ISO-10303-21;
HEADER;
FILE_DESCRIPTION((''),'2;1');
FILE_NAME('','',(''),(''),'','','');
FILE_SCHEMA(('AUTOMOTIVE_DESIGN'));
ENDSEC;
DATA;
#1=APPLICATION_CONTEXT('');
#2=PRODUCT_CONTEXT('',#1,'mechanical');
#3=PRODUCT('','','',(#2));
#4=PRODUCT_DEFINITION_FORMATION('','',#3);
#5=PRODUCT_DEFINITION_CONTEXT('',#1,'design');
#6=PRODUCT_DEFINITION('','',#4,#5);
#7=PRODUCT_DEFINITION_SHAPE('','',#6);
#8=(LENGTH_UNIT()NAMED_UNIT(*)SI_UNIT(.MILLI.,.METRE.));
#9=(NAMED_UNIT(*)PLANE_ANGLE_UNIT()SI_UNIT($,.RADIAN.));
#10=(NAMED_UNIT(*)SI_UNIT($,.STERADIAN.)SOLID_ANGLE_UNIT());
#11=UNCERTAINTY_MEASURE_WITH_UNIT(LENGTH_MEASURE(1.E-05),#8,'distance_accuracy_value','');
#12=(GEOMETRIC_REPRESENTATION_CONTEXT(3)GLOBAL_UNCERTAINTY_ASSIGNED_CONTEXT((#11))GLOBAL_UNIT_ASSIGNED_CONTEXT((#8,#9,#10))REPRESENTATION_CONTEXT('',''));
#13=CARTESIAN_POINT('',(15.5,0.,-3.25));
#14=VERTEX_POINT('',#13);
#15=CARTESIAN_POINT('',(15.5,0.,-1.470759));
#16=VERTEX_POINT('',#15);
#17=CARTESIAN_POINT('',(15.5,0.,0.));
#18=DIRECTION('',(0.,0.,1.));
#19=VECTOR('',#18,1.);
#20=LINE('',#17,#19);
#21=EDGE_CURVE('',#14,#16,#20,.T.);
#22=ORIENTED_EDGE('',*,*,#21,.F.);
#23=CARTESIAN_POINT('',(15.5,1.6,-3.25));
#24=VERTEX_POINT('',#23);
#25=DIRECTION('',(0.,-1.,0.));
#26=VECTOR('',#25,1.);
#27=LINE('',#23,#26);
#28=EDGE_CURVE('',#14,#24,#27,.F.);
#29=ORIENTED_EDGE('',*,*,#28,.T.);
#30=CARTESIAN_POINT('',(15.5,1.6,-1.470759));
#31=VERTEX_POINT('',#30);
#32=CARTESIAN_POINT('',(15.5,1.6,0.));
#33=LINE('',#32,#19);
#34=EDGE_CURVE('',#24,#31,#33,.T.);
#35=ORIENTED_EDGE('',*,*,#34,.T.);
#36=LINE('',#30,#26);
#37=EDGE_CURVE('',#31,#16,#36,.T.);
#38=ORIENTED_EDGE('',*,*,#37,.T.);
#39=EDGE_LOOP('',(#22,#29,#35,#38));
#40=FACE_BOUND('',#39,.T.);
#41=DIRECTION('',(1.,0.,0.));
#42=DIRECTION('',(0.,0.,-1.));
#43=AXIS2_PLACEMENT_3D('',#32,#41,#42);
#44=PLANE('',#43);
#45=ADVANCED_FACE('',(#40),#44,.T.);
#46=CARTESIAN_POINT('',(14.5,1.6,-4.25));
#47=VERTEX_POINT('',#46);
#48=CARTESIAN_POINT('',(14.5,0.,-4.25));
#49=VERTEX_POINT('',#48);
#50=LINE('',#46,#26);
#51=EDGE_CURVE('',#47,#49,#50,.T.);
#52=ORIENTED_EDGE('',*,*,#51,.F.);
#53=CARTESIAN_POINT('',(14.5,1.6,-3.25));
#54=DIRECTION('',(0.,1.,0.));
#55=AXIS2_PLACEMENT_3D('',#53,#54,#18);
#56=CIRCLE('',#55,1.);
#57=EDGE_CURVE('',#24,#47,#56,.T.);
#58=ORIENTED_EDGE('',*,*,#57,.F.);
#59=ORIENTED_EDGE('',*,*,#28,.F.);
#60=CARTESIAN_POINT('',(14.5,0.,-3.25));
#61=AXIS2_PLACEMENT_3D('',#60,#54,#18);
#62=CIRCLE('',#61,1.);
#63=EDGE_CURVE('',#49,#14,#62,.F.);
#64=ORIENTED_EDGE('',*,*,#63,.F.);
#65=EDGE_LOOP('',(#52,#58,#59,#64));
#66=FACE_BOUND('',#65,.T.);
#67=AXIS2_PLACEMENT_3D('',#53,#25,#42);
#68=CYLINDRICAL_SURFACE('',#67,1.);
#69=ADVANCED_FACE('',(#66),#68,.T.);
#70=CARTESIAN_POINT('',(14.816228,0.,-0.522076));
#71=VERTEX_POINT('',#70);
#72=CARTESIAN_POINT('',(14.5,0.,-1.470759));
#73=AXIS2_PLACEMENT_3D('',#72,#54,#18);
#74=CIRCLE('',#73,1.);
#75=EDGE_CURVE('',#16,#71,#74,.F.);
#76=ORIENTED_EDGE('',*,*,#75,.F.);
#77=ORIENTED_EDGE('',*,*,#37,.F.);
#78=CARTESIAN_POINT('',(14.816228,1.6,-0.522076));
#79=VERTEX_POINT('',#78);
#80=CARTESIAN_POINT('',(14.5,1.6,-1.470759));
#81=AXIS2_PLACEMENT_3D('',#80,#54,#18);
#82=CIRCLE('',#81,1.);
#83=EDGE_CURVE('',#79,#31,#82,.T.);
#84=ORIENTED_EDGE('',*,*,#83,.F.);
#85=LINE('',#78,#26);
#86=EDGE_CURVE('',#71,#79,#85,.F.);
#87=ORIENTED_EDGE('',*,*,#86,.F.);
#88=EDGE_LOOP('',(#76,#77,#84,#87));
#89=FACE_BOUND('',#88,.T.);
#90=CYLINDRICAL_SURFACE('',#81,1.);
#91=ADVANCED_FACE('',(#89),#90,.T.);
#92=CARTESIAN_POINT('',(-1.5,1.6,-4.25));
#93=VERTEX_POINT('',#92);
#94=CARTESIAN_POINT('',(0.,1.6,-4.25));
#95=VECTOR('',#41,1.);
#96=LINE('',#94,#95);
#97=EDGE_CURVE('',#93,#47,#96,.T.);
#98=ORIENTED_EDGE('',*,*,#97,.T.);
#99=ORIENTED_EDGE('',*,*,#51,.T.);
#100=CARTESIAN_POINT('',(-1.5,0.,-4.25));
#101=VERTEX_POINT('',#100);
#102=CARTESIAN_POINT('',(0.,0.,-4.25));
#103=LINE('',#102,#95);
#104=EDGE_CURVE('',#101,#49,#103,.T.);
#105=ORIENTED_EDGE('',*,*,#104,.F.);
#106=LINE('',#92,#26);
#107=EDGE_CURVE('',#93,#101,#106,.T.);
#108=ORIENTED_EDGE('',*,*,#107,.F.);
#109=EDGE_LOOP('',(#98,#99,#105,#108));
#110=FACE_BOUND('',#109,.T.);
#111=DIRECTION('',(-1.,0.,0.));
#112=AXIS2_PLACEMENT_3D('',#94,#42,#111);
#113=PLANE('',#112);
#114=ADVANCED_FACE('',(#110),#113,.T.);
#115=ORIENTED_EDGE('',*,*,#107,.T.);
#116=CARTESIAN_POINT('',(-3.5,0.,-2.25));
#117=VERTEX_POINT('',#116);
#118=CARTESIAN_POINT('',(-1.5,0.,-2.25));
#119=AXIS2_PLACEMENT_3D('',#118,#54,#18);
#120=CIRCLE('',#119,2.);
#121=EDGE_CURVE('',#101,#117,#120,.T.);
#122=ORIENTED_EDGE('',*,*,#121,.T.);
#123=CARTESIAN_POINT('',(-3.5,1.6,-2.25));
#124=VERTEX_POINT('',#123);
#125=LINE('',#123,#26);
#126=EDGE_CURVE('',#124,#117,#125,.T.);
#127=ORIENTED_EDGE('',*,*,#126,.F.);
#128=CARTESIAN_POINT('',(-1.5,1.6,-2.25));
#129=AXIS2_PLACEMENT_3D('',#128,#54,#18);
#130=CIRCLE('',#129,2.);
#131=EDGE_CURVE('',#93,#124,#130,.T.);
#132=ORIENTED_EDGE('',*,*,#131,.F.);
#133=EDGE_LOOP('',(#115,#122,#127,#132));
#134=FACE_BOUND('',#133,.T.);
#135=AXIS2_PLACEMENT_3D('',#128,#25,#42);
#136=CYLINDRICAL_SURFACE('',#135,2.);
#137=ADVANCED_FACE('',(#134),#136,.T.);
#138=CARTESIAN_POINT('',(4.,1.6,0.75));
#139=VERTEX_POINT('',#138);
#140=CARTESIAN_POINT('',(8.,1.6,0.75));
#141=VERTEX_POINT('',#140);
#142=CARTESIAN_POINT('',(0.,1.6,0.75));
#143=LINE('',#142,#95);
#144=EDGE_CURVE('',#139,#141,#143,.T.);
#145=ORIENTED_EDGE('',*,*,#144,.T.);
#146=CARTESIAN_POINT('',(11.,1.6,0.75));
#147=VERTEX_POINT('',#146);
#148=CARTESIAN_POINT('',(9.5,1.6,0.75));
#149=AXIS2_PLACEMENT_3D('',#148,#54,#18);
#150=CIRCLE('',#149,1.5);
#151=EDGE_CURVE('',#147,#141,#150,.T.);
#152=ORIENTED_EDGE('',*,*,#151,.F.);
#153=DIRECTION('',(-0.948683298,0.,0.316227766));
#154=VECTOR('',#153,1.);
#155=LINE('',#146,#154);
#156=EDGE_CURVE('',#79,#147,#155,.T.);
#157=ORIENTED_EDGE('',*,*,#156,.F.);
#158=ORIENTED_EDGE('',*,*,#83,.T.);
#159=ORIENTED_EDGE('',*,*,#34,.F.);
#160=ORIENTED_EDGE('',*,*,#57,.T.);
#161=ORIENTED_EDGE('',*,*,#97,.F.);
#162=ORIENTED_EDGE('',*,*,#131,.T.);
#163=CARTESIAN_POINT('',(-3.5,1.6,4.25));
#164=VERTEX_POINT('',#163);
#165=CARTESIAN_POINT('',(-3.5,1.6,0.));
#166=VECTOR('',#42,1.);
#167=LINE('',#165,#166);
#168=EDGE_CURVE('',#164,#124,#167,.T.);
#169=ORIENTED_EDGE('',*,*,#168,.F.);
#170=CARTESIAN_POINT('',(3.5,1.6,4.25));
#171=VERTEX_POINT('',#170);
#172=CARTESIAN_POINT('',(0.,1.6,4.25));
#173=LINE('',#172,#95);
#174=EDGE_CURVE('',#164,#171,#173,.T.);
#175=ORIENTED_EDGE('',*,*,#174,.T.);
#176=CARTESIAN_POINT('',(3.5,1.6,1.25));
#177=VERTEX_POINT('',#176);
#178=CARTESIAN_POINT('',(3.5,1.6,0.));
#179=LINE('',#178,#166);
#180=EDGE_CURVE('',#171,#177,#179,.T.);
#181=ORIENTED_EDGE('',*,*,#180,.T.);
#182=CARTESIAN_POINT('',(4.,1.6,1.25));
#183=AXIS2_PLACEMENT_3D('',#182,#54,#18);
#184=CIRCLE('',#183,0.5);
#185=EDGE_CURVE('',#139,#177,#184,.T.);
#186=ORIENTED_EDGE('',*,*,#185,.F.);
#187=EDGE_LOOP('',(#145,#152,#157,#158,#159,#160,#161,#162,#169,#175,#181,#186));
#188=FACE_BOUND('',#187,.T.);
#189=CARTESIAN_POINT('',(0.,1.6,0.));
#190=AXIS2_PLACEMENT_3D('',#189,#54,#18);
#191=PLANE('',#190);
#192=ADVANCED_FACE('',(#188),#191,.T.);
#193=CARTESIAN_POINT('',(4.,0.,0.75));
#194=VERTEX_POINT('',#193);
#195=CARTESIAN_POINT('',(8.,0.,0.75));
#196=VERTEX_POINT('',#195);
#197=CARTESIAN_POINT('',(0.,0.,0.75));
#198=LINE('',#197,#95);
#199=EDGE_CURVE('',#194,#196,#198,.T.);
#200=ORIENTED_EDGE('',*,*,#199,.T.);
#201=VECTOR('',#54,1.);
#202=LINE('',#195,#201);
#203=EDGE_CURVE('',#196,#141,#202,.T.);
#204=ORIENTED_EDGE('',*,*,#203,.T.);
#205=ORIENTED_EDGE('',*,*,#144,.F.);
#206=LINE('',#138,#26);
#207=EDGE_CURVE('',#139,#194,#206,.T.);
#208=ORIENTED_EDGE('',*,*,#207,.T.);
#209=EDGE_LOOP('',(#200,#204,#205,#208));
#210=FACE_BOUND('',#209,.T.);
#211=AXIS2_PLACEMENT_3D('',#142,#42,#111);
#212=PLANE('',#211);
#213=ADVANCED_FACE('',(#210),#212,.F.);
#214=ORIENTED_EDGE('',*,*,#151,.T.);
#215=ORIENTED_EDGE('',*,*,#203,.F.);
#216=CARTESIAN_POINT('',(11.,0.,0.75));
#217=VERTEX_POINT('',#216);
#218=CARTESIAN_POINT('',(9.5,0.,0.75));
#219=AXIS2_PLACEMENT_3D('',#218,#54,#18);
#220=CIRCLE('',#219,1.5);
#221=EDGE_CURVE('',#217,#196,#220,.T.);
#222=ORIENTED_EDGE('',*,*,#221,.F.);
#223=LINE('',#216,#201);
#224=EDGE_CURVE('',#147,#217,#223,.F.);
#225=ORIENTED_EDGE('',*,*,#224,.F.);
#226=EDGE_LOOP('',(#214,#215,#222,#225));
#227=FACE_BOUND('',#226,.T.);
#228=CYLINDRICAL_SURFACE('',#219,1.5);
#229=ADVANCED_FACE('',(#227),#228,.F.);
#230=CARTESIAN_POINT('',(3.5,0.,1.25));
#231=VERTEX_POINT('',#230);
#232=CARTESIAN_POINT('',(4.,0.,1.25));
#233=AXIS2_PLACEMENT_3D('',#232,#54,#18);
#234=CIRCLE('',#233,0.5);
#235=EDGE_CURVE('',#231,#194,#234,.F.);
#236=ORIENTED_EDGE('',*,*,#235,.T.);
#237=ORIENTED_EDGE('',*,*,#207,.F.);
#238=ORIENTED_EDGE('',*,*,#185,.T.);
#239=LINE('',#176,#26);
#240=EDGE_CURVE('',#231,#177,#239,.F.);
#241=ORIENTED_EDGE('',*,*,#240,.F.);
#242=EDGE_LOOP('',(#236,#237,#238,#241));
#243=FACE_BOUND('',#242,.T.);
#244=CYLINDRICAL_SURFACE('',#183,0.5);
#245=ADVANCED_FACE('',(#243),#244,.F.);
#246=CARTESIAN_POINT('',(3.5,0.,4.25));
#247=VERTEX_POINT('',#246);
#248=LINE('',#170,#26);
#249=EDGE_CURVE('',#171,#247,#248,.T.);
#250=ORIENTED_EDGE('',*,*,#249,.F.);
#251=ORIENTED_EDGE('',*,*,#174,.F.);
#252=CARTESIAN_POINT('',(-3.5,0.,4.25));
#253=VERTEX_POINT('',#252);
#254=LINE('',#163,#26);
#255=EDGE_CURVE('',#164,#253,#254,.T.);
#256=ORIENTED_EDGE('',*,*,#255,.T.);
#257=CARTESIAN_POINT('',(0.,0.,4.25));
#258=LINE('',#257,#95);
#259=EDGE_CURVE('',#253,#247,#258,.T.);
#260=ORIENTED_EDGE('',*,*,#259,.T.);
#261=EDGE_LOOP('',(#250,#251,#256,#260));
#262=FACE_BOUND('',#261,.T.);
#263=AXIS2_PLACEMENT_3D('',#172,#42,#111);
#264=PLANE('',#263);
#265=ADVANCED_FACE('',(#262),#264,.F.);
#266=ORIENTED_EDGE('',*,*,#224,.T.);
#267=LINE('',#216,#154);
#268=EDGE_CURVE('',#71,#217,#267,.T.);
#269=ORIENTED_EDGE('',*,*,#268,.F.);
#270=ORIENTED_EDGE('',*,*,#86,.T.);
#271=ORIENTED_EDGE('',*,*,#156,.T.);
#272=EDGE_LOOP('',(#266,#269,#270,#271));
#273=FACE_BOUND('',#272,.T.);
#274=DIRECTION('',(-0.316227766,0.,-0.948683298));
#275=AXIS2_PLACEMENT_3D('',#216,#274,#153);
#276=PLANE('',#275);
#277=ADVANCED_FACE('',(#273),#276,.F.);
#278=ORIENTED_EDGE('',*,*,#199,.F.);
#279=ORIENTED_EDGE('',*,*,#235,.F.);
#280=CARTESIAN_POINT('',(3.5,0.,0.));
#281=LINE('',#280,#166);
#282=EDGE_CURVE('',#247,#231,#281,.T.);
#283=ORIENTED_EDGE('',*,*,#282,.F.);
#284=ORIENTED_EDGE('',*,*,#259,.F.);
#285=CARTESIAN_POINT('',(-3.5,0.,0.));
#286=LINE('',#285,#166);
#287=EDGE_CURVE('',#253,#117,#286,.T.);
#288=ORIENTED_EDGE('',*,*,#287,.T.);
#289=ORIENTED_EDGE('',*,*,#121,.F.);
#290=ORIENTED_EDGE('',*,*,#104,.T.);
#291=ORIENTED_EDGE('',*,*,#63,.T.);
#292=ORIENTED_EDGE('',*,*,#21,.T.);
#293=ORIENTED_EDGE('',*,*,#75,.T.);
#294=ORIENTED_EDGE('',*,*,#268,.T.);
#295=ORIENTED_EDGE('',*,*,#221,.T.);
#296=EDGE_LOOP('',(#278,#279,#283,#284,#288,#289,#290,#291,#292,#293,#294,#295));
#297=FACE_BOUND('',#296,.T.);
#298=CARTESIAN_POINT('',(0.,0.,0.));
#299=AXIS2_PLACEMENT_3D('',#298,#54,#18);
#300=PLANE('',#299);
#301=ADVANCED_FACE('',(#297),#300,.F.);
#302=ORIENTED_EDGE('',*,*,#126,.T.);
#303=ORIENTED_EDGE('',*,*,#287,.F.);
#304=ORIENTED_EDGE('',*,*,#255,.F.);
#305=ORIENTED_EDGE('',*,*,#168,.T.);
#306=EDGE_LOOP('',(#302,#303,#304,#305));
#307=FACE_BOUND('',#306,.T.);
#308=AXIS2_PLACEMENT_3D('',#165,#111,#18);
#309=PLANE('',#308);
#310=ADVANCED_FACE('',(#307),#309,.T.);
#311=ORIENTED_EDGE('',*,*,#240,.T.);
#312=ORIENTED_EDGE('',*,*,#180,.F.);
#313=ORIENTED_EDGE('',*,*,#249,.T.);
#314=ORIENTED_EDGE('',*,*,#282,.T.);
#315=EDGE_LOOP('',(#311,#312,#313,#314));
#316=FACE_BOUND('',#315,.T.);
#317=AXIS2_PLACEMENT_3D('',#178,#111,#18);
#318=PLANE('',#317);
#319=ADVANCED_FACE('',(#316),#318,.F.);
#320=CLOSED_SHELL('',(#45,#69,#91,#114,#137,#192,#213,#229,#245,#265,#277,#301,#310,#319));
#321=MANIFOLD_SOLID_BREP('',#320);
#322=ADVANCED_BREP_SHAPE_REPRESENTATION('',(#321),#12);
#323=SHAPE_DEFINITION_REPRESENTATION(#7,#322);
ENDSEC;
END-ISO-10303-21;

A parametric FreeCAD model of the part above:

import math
import FreeCAD as App
import Part
import Sketcher

V = App.Vector


def edges_at(feature, points):
    """Names of the edges that pass closest to the given points."""
    edges = feature.Shape.Edges
    near = lambda p: min(range(len(edges)), key=lambda i: edges[i].distToShape(Part.Vertex(*p))[0])
    return sorted({f"Edge{near(p) + 1}" for p in points})

doc = App.newDocument("Part")
body = doc.addObject("PartDesign::Body", "Body")

sketch1 = doc.addObject("Sketcher::SketchObject", "Sketch")
body.addObject(sketch1)
sketch1.AttachmentSupport = (doc.XZ_Plane, [""])
sketch1.MapMode = "FlatFace"
sketch1.addGeometry(Part.LineSegment(V(-3.5, -2.25, 0), V(-3.5, 4.25, 0)), False)
sketch1.addGeometry(Part.LineSegment(V(-3.5, 4.25, 0), V(3.5, 4.25, 0)), False)
sketch1.addGeometry(Part.LineSegment(V(3.5, 4.25, 0), V(3.5, 0.75, 0)), False)
sketch1.addGeometry(Part.LineSegment(V(3.5, 0.75, 0), V(15.5, 0.75, 0)), False)
sketch1.addGeometry(Part.LineSegment(V(15.5, 0.75, 0), V(15.5, -4.25, 0)), False)
sketch1.addGeometry(Part.LineSegment(V(15.5, -4.25, 0), V(-1.5, -4.25, 0)), False)
sketch1.addGeometry(Part.ArcOfCircle(Part.Circle(V(-1.5, -2.25, 0), V(0, 0, 1), 2), math.radians(-180), math.radians(-90)), False)
sketch1.addConstraint(Sketcher.Constraint("Coincident", 0, 2, 1, 1))
sketch1.addConstraint(Sketcher.Constraint("Coincident", 1, 2, 2, 1))
sketch1.addConstraint(Sketcher.Constraint("Coincident", 2, 2, 3, 1))
sketch1.addConstraint(Sketcher.Constraint("Coincident", 3, 2, 4, 1))
sketch1.addConstraint(Sketcher.Constraint("Coincident", 4, 2, 5, 1))
sketch1.addConstraint(Sketcher.Constraint("Tangent", 5, 2, 6, 2))
sketch1.addConstraint(Sketcher.Constraint("Tangent", 6, 1, 0, 1))
sketch1.addConstraint(Sketcher.Constraint("Vertical", 0))
sketch1.addConstraint(Sketcher.Constraint("Horizontal", 1))
sketch1.addConstraint(Sketcher.Constraint("Vertical", 2))
sketch1.addConstraint(Sketcher.Constraint("Horizontal", 3))
sketch1.addConstraint(Sketcher.Constraint("Vertical", 4))
sketch1.addConstraint(Sketcher.Constraint("Horizontal", 5))
sketch1.addConstraint(Sketcher.Constraint("Radius", 6, 2.0))
sketch1.addConstraint(Sketcher.Constraint("DistanceX", 1, 1, 1, 2, 7.0))
sketch1.addConstraint(Sketcher.Constraint("DistanceX", 3, 1, 3, 2, 12.0))
sketch1.addConstraint(Sketcher.Constraint("DistanceY", 4, 2, 4, 1, 5.0))
sketch1.addConstraint(Sketcher.Constraint("DistanceY", 0, 1, 0, 2, 6.5))
sketch1.addConstraint(Sketcher.Constraint("DistanceX", 6, 3, -1, 1, 1.5))
sketch1.addConstraint(Sketcher.Constraint("DistanceY", 6, 3, -1, 1, 2.25))
pad1 = doc.addObject("PartDesign::Pad", "Pad")
body.addObject(pad1)
pad1.Profile = sketch1
pad1.Length = 1.6
pad1.Reversed = True

sketch2 = doc.addObject("Sketcher::SketchObject", "Sketch001")
body.addObject(sketch2)
sketch2.AttachmentSupport = (doc.XZ_Plane, [""])
sketch2.MapMode = "FlatFace"
sketch2.AttachmentOffset = App.Placement(V(0, 0, -1.6), App.Rotation())
sketch2.addGeometry(Part.Circle(V(9.5, 0.75, 0), V(0, 0, 1), 1.5), False)
sketch2.addConstraint(Sketcher.Constraint("Diameter", 0, 3.0))
sketch2.addConstraint(Sketcher.Constraint("DistanceX", -1, 1, 0, 3, 9.5))
sketch2.addConstraint(Sketcher.Constraint("DistanceY", -1, 1, 0, 3, 0.75))
pocket1 = doc.addObject("PartDesign::Pocket", "Pocket")
body.addObject(pocket1)
pocket1.Profile = sketch2
pocket1.Length = 1.6
pocket1.Reversed = True

sketch3 = doc.addObject("Sketcher::SketchObject", "Sketch002")
body.addObject(sketch3)
sketch3.AttachmentSupport = (doc.XZ_Plane, [""])
sketch3.MapMode = "FlatFace"
sketch3.AttachmentOffset = App.Placement(V(0, 0, -1.6), App.Rotation())
sketch3.addGeometry(Part.LineSegment(V(15.5, -0.75, 0), V(11, 0.75, 0)), False)
sketch3.addGeometry(Part.LineSegment(V(11, 0.75, 0), V(15.5, 0.75, 0)), False)
sketch3.addGeometry(Part.LineSegment(V(15.5, 0.75, 0), V(15.5, -0.75, 0)), False)
sketch3.addConstraint(Sketcher.Constraint("Coincident", 0, 2, 1, 1))
sketch3.addConstraint(Sketcher.Constraint("Coincident", 1, 2, 2, 1))
sketch3.addConstraint(Sketcher.Constraint("Coincident", 2, 2, 0, 1))
sketch3.addConstraint(Sketcher.Constraint("Horizontal", 1))
sketch3.addConstraint(Sketcher.Constraint("Vertical", 2))
sketch3.addConstraint(Sketcher.Constraint("DistanceX", 1, 1, 1, 2, 4.5))
sketch3.addConstraint(Sketcher.Constraint("DistanceY", 2, 2, 2, 1, 1.5))
sketch3.addConstraint(Sketcher.Constraint("DistanceX", -1, 1, 0, 2, 11.0))
sketch3.addConstraint(Sketcher.Constraint("DistanceY", -1, 1, 0, 2, 0.75))
pocket2 = doc.addObject("PartDesign::Pocket", "Pocket001")
body.addObject(pocket2)
pocket2.Profile = sketch3
pocket2.Length = 1.6
pocket2.Reversed = True
doc.recompute()

fillet = doc.addObject("PartDesign::Fillet", "Fillet")
body.addObject(fillet)
fillet.Base = (pocket2, edges_at(pocket2, [(15.5, 0.8, -0.75)]))
fillet.Radius = 1
doc.recompute()

fillet2 = doc.addObject("PartDesign::Fillet", "Fillet001")
body.addObject(fillet2)
fillet2.Base = (fillet, edges_at(fillet, [(15.5, 0.8, -4.25)]))
fillet2.Radius = 1
doc.recompute()

fillet3 = doc.addObject("PartDesign::Fillet", "Fillet002")
body.addObject(fillet3)
fillet3.Base = (fillet2, edges_at(fillet2, [(3.5, 0.8, 0.75)]))
fillet3.Radius = 0.5

doc.recompute()
